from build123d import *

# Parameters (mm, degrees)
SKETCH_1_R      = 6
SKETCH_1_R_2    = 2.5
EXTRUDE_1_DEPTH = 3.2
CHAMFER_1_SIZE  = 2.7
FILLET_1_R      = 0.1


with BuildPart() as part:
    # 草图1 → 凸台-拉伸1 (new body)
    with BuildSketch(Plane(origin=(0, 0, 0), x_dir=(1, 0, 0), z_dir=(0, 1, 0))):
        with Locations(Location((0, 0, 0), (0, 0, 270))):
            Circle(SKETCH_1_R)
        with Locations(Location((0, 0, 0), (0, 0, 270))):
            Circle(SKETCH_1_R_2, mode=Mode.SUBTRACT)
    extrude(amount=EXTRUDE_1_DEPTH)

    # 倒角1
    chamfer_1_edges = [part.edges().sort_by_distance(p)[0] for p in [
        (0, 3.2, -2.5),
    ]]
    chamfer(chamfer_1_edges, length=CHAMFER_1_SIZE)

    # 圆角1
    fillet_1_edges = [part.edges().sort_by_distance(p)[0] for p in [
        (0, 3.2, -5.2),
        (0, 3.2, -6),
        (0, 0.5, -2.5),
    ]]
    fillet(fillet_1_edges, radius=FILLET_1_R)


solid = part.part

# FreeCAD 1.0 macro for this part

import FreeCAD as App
import Part
import Sketcher

V = App.Vector


def edges_at(feature, points):
    """Names of the edges that pass closest to the given points."""
    edges = feature.Shape.Edges
    near = lambda p: min(range(len(edges)), key=lambda i: edges[i].distToShape(Part.Vertex(*p))[0])
    return sorted({f"Edge{near(p) + 1}" for p in points})

doc = App.newDocument("Part")
body = doc.addObject("PartDesign::Body", "Body")

# Sketch on XZ plane
sketch1 = body.newObject("Sketcher::SketchObject", "Sketch")
sketch1.AttachmentSupport = (doc.getObject("XZ_Plane"), [""])
sketch1.MapMode = "FlatFace"
sketch1.addGeometry(Part.Circle(V(0, 0, 0), V(0, 0, 1), 6), False)
sketch1.addGeometry(Part.Circle(V(0, 0, 0), V(0, 0, 1), 2.5), False)
sketch1.addConstraint(Sketcher.Constraint("Coincident", 0, 3, -1, 1))
sketch1.addConstraint(Sketcher.Constraint("Coincident", 1, 3, -1, 1))
sketch1.addConstraint(Sketcher.Constraint("Diameter", 0, 12.0))
sketch1.addConstraint(Sketcher.Constraint("Diameter", 1, 5.0))
pad1 = body.newObject("PartDesign::Pad", "Pad")
pad1.Profile = sketch1
pad1.Length = 3.2
pad1.Reversed = True
doc.recompute()

chamfer = body.newObject("PartDesign::Chamfer", "Chamfer")
chamfer.Base = (pad1, edges_at(pad1, [(0, 3.2, -2.5)]))
chamfer.Size = 2.7
doc.recompute()

fillet = body.newObject("PartDesign::Fillet", "Fillet")
fillet.Base = (chamfer, edges_at(chamfer, [(0, 3.2, -5.2), (0, 3.2, -6), (0, 0.5, -2.5)]))
fillet.Radius = 0.1

doc.recompute()
